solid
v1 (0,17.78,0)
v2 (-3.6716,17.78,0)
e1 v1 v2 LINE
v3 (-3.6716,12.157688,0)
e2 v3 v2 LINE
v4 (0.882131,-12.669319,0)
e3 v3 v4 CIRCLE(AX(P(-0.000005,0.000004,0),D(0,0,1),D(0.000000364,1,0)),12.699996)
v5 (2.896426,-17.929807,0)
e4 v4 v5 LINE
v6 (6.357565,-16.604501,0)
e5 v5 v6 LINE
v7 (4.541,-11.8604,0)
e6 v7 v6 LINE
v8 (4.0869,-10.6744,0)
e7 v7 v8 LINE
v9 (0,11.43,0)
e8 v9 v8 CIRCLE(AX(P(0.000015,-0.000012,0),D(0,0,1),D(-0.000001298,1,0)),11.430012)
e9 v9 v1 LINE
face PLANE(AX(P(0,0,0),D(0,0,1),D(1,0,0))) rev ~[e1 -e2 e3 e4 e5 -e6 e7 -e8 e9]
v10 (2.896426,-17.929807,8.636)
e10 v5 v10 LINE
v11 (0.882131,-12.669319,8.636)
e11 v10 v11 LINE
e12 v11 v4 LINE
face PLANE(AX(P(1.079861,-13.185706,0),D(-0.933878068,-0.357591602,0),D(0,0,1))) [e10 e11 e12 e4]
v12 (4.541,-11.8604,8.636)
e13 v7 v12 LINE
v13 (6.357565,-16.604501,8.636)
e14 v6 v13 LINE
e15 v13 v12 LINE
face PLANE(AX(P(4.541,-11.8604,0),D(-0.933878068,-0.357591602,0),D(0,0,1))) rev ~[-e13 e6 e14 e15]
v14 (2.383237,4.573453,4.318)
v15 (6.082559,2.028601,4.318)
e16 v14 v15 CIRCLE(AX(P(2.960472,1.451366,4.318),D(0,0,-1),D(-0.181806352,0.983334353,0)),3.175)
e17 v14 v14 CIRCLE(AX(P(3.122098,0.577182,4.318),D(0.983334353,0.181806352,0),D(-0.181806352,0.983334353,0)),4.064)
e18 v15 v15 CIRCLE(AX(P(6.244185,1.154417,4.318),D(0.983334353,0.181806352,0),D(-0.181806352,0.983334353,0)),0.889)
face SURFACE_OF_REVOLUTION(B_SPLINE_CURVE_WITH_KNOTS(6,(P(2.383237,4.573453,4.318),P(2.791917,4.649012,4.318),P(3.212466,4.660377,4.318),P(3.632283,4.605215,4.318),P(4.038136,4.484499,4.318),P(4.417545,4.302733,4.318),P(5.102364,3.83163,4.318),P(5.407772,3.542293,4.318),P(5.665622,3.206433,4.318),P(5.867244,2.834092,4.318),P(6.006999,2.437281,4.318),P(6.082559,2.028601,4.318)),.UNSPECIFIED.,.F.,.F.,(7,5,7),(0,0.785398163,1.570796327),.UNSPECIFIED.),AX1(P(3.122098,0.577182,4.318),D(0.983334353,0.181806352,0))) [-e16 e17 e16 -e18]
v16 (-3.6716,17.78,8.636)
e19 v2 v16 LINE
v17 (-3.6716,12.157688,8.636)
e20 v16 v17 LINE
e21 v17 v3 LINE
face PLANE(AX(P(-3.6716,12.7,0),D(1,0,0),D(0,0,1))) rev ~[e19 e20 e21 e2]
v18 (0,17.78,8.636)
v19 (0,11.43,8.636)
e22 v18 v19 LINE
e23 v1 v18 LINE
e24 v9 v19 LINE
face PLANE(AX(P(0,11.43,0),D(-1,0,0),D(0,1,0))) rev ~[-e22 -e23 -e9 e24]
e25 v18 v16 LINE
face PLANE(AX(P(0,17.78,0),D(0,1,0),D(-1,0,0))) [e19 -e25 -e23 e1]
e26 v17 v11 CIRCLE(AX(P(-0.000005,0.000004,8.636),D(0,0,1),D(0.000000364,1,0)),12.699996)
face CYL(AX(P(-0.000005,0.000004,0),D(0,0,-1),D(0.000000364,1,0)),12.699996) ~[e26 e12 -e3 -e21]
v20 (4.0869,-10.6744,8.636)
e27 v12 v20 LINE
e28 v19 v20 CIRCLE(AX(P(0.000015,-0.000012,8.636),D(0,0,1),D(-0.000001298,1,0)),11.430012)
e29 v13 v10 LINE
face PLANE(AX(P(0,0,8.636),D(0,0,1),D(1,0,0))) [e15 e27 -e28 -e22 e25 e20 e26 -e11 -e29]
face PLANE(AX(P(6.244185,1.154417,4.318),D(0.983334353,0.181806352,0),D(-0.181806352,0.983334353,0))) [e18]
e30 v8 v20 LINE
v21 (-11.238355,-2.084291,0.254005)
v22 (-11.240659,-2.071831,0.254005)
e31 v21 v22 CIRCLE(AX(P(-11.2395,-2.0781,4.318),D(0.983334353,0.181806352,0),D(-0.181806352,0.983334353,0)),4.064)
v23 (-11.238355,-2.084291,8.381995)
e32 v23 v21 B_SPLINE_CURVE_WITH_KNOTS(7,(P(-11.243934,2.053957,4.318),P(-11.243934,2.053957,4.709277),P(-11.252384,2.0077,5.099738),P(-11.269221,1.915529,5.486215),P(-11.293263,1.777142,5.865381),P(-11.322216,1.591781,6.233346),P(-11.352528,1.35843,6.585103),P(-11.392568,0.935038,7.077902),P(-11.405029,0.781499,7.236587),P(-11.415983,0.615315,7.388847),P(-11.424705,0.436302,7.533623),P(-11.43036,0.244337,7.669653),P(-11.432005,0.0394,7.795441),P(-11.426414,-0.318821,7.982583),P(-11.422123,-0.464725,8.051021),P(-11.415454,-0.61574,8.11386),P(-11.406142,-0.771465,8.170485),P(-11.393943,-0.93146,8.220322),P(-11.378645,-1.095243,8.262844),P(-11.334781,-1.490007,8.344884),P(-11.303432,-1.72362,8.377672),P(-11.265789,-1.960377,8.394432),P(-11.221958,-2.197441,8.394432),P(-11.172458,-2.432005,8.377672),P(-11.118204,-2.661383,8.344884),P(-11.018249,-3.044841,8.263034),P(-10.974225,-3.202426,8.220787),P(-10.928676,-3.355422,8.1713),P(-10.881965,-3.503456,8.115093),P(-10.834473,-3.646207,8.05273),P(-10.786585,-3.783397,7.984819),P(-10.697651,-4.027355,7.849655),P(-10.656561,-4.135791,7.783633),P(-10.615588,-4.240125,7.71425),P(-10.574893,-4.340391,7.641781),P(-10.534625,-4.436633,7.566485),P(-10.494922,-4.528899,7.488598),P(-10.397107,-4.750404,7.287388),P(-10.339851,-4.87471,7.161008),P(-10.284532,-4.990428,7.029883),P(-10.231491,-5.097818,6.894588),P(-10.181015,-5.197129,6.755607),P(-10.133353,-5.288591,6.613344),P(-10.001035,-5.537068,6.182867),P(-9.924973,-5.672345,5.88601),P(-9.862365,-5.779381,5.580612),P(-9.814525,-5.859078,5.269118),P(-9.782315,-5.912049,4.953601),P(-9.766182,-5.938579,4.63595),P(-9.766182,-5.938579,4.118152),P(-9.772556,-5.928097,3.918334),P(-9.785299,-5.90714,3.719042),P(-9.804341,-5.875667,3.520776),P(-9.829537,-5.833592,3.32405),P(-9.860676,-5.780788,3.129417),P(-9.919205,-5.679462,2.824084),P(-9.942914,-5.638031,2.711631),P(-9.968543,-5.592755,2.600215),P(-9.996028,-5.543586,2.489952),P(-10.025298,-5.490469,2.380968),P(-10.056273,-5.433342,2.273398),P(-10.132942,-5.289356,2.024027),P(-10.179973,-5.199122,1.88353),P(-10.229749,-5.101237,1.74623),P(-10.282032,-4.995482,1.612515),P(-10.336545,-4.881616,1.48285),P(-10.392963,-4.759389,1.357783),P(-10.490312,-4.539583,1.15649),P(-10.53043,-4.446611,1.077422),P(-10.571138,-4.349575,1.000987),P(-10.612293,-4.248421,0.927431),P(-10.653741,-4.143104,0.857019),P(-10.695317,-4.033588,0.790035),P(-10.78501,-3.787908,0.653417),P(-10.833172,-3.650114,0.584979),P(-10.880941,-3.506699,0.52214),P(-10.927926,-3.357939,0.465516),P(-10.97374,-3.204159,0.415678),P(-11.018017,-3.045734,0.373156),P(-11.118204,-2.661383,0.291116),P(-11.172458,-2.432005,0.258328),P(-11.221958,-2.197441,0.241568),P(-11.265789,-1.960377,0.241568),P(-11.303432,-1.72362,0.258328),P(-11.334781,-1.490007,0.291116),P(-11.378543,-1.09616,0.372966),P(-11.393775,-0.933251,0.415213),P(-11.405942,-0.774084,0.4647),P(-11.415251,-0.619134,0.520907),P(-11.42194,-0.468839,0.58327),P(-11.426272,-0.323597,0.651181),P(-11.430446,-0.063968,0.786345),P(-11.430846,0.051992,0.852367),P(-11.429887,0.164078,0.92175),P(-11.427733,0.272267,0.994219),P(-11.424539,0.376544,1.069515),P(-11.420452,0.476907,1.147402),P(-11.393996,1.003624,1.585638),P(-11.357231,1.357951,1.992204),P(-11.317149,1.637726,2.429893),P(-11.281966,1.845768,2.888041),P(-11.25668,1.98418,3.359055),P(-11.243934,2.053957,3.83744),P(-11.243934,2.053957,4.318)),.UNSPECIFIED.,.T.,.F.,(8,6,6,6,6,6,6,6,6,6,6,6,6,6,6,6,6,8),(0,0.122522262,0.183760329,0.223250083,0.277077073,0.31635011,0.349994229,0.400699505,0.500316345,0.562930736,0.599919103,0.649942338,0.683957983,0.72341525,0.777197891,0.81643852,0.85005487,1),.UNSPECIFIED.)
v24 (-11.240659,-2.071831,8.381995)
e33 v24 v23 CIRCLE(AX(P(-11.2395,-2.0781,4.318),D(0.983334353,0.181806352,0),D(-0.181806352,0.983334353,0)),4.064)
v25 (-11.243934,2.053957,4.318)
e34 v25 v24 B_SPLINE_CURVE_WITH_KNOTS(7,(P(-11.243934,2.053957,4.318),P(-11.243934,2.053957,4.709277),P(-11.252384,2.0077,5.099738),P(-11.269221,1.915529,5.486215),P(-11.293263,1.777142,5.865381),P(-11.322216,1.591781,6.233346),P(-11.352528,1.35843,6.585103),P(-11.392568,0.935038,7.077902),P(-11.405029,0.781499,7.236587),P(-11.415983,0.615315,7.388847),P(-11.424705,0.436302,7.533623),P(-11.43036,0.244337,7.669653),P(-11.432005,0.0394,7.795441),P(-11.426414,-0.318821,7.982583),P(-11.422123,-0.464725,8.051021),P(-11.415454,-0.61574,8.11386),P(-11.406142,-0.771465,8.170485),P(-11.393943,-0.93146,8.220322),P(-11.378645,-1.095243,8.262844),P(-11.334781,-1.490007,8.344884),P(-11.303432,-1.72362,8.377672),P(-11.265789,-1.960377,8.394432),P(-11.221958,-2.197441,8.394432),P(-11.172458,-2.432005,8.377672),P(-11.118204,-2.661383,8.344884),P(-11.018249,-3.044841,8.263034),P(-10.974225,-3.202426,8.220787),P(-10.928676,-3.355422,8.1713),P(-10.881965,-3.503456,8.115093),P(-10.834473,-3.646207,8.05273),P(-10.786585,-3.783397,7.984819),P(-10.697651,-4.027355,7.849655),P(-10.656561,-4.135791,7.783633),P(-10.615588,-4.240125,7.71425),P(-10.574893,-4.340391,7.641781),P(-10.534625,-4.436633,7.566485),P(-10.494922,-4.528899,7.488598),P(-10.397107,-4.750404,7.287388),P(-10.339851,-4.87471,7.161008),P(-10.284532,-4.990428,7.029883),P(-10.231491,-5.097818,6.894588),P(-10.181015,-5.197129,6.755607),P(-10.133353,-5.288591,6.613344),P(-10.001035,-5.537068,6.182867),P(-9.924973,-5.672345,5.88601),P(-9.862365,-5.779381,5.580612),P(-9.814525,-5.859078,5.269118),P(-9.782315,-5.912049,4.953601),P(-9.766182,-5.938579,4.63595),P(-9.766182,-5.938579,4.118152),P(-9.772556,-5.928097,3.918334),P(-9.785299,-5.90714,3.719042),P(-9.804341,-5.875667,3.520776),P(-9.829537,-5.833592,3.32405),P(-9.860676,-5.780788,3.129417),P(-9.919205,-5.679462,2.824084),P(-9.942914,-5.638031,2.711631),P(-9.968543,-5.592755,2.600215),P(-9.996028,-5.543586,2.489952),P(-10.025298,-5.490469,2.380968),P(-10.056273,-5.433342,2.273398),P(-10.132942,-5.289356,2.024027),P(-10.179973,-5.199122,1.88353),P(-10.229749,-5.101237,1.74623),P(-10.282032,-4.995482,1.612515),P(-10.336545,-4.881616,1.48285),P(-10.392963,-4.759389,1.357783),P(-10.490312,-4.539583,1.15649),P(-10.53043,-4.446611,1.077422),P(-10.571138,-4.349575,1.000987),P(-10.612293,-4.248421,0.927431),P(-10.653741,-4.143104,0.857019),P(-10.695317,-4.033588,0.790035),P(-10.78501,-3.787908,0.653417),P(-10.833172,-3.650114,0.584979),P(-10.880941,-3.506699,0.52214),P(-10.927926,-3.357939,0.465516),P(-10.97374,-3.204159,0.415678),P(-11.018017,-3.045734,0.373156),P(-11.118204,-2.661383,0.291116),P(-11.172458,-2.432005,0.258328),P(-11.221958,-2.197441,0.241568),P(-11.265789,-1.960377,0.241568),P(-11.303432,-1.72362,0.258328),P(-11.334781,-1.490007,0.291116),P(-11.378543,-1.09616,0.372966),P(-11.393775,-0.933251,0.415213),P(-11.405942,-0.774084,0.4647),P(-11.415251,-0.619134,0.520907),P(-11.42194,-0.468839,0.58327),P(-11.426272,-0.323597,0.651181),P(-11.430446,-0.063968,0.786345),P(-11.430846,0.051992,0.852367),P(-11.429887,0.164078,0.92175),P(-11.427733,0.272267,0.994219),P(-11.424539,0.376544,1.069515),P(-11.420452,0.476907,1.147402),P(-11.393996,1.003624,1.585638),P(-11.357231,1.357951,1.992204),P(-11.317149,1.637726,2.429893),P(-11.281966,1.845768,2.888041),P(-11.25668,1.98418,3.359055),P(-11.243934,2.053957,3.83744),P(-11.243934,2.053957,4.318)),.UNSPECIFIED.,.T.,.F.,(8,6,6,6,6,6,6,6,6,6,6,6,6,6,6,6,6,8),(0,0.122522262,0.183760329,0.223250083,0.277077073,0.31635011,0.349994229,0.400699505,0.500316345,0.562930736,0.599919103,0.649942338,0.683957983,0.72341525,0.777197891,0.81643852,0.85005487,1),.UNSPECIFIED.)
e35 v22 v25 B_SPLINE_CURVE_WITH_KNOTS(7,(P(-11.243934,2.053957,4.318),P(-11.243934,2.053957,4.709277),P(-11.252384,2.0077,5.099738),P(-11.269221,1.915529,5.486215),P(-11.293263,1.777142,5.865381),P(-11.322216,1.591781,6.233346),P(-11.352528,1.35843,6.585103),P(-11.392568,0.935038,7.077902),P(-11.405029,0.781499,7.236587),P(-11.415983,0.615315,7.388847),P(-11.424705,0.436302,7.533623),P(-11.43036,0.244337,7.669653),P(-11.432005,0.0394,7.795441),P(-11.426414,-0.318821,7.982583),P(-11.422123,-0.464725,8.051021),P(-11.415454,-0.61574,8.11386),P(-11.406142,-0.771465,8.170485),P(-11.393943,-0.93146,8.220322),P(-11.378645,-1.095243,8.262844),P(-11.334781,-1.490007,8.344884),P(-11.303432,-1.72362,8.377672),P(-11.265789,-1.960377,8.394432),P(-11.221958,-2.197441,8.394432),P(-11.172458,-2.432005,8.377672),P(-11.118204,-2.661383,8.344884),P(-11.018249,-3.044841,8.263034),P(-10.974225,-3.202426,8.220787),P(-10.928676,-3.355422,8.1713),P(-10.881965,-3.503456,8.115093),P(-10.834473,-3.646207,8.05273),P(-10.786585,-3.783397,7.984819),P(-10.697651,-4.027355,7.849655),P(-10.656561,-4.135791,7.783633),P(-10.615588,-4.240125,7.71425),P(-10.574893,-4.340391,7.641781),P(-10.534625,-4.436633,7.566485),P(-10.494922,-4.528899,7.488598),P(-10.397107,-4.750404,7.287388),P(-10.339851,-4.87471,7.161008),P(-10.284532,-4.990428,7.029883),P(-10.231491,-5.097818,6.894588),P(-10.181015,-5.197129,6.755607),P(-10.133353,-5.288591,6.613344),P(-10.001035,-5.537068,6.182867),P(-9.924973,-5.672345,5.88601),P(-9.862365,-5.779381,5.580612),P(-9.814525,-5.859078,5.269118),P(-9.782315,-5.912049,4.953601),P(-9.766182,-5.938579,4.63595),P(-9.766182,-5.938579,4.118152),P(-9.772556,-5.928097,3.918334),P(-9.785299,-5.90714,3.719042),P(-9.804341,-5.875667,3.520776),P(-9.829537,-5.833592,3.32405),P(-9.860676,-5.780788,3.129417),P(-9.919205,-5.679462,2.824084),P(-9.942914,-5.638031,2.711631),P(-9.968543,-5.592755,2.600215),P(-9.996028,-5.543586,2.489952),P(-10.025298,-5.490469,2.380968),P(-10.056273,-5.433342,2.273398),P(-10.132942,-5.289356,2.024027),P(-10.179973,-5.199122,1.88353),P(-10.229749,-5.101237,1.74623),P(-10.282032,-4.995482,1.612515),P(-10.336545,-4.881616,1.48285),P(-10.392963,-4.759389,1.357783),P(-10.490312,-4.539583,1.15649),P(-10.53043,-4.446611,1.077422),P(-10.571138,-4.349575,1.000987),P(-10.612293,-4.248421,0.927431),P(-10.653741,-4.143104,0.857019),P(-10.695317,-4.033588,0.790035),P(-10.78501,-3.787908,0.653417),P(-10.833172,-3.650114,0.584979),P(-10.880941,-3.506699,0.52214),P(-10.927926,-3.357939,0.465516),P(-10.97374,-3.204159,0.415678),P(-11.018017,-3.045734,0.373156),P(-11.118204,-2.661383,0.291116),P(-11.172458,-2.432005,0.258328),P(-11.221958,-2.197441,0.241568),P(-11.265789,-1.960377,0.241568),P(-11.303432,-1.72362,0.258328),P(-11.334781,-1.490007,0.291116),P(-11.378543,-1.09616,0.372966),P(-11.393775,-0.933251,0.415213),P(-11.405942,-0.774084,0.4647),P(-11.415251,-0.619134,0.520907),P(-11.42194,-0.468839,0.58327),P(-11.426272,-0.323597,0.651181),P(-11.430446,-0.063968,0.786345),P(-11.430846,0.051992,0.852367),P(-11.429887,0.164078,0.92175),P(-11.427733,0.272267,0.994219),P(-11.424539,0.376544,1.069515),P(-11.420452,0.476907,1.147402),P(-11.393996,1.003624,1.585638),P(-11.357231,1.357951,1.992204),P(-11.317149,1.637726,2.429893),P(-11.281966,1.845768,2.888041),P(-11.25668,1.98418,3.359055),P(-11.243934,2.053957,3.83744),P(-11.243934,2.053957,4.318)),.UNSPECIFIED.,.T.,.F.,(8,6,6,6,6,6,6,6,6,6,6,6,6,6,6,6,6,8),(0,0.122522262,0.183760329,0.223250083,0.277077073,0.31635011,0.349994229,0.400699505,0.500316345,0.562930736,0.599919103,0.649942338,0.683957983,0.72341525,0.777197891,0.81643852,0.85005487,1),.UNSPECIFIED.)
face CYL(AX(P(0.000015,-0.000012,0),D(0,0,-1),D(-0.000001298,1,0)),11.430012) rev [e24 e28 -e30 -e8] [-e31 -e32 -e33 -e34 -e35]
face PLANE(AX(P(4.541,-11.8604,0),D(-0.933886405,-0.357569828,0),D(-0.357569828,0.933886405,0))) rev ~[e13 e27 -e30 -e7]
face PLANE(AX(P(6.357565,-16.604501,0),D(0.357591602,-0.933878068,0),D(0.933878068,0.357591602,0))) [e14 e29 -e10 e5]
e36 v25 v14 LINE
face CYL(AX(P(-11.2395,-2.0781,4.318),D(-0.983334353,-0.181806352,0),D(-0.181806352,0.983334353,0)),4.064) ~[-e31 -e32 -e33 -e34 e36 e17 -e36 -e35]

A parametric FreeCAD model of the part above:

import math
import FreeCAD as App
import Part
import Sketcher
Q = App.Units.Quantity


def edges_at(feature, points):
    """Names of the edges that pass closest to the given points."""
    edges = feature.Shape.Edges
    near = lambda p: min(range(len(edges)), key=lambda i: edges[i].distToShape(Part.Vertex(*p))[0])
    return sorted({f"Edge{near(p) + 1}" for p in points})

doc = App.newDocument("Part")
params = doc.addObject("Spreadsheet::Sheet", "Params")
for row, (alias, value) in enumerate([
    ("sketch1_radius", "0.5 in"),
    ("sketch1_radius2", "0.45 in"),
    ("pad1_length", "0.34 in"),
    ("sketch2_diameter", "0.32 in"),
    ("pad2_length", "0.7 in"),
    ("fillet_radius", "0.125 in"),
    ("sketch3_height", "0.34 in"),
    ("pad3_length", "0.2 in"),
    ("pad3_length2", "0.0375 in"),
    ("sketch4_height", "0.34 in"),
    ("pad4_length", "0.2 in"),
    ("pad4_length2", "0.04 in"),
], start=1):
    params.set(f"A{row}", alias)
    params.set(f"B{row}", "=" + value)
    params.setAlias(f"B{row}", alias)

body = doc.addObject("PartDesign::Body", "Body")

# Sketch on XY plane
sketch1 = body.newObject("Sketcher::SketchObject", "Sketch")
sketch1.AttachmentSupport = (doc.getObject("XY_Plane"), [""])
sketch1.MapMode = "FlatFace"
sketch1.addGeometry(Part.LineSegment(App.Vector(0, 11.4, 0), App.Vector(0, 12.7, 0)), False)
sketch1.addGeometry(Part.ArcOfCircle(Part.Circle(App.Vector(0, 0, 0), App.Vector(0, 0, 1), 12.7), math.radians(90), math.radians(291)), False)
sketch1.addGeometry(Part.LineSegment(App.Vector(4.5, -11.9, 0), App.Vector(4.1, -10.7, 0)), False)
sketch1.addGeometry(Part.ArcOfCircle(Part.Circle(App.Vector(0, 0, 0), App.Vector(0, 0, 1), 11.4), math.radians(90), math.radians(291)), False)
sketch1.addConstraint(Sketcher.Constraint("Coincident", 0, 2, 1, 1))
sketch1.addConstraint(Sketcher.Constraint("Coincident", 1, 2, 2, 1))
sketch1.addConstraint(Sketcher.Constraint("Coincident", 2, 2, 3, 2))
sketch1.addConstraint(Sketcher.Constraint("Coincident", 3, 1, 0, 1))
sketch1.addConstraint(Sketcher.Constraint("Vertical", 0))
sketch1.addConstraint(Sketcher.Constraint("Coincident", 1, 3, -1, 1))
sketch1.addConstraint(Sketcher.Constraint("Coincident", 3, 3, -1, 1))
sketch1.addConstraint(Sketcher.Constraint("PointOnObject", 0, 2, -2))
sketch1.addConstraint(Sketcher.Constraint("Radius", 1, Q("0.5 in")))
sketch1.addConstraint(Sketcher.Constraint("Radius", 3, Q("0.45 in")))
sketch1.addConstraint(Sketcher.Constraint("Angle", 2, Q("110.951 deg")))
sketch1.addConstraint(Sketcher.Constraint("DistanceX", -1, 1, 2, 2, Q("0.1609 in")))
sketch1.setExpression("Constraints[8]", "Params.sketch1_radius")
sketch1.setExpression("Constraints[9]", "Params.sketch1_radius2")
pad1 = body.newObject("PartDesign::Pad", "Pad")
pad1.Profile = sketch1
pad1.setExpression("Length", "Params.pad1_length")

# Sketch on an angled plane
sketch2 = body.newObject("Sketcher::SketchObject", "Sketch001")
sketch2.Placement = App.Placement(App.Vector(-11.2395, -2.0781, 4.318), App.Rotation(App.Vector(-0.181806352, 0.983334353, 0), App.Vector(0, 0, 0.999999999), App.Vector(0.983334353, 0.181806352, 0), "ZXY"))
sketch2.addGeometry(Part.Circle(App.Vector(0, 0, 0), App.Vector(0, 0, 1), 4.1), False)
sketch2.addConstraint(Sketcher.Constraint("Coincident", 0, 3, -1, 1))
sketch2.addConstraint(Sketcher.Constraint("Diameter", 0, Q("0.32 in")))
sketch2.setExpression("Constraints[1]", "Params.sketch2_diameter")
pad2 = body.newObject("PartDesign::Pad", "Pad001")
pad2.Profile = sketch2
pad2.setExpression("Length", "Params.pad2_length")
doc.recompute()

fillet = body.newObject("PartDesign::Fillet", "Fillet")
fillet.Base = (pad2, edges_at(pad2, [(6.983, -2.842, 4.318)]))
fillet.setExpression("Radius", "Params.fillet_radius")

# Sketch on XZ plane
sketch3 = body.newObject("Sketcher::SketchObject", "Sketch002")
sketch3.AttachmentSupport = (doc.getObject("XZ_Plane"), [""])
sketch3.MapMode = "FlatFace"
sketch3.AttachmentOffset = App.Placement(App.Vector(0, 0, -0.5 * 25.4), App.Rotation())
sketch3.addGeometry(Part.LineSegment(App.Vector(0, 8.6, 0), App.Vector(0, 0, 0)), False)
sketch3.addGeometry(Part.LineSegment(App.Vector(0, 0, 0), App.Vector(-3.7, 0, 0)), False)
sketch3.addGeometry(Part.LineSegment(App.Vector(-3.7, 0, 0), App.Vector(-3.7, 8.6, 0)), False)
sketch3.addGeometry(Part.LineSegment(App.Vector(-3.7, 8.6, 0), App.Vector(0, 8.6, 0)), False)
sketch3.addConstraint(Sketcher.Constraint("Coincident", 0, 2, 1, 1))
sketch3.addConstraint(Sketcher.Constraint("Coincident", 1, 2, 2, 1))
sketch3.addConstraint(Sketcher.Constraint("Coincident", 2, 2, 3, 1))
sketch3.addConstraint(Sketcher.Constraint("Coincident", 3, 2, 0, 1))
sketch3.addConstraint(Sketcher.Constraint("Vertical", 0))
sketch3.addConstraint(Sketcher.Constraint("Horizontal", 1))
sketch3.addConstraint(Sketcher.Constraint("Vertical", 2))
sketch3.addConstraint(Sketcher.Constraint("Horizontal", 3))
sketch3.addConstraint(Sketcher.Constraint("Coincident", 0, 2, -1, 1))
sketch3.addConstraint(Sketcher.Constraint("DistanceY", 0, 2, 0, 1, Q("0.34 in")))
sketch3.addConstraint(Sketcher.Constraint("DistanceX", 1, 2, 1, 1, 3.6716))
sketch3.setExpression("Constraints[9]", "Params.sketch3_height")
pad3 = body.newObject("PartDesign::Pad", "Pad002")
pad3.Profile = sketch3
pad3.Type = "TwoLengths"
pad3.setExpression("Length", "Params.pad3_length")
pad3.setExpression("Length2", "Params.pad3_length2")
pad3.Reversed = True

# Sketch on an angled plane
sketch4 = body.newObject("Sketcher::SketchObject", "Sketch003")
sketch4.Placement = App.Placement(App.Vector(4.541, -11.8604, 0), App.Rotation(App.Vector(0.933878068, 0.357591602, 0), App.Vector(0, 0, 1), App.Vector(0.357591602, -0.933878068, 0), "ZXY"))
sketch4.addGeometry(Part.LineSegment(App.Vector(-3.7, 8.6, 0), App.Vector(-3.7, 0, 0)), False)
sketch4.addGeometry(Part.LineSegment(App.Vector(-3.7, 0, 0), App.Vector(0, 0, 0)), False)
sketch4.addGeometry(Part.LineSegment(App.Vector(0, 0, 0), App.Vector(0, 8.6, 0)), False)
sketch4.addGeometry(Part.LineSegment(App.Vector(0, 8.6, 0), App.Vector(-3.7, 8.6, 0)), False)
sketch4.addConstraint(Sketcher.Constraint("Coincident", 0, 2, 1, 1))
sketch4.addConstraint(Sketcher.Constraint("Coincident", 1, 2, 2, 1))
sketch4.addConstraint(Sketcher.Constraint("Coincident", 2, 2, 3, 1))
sketch4.addConstraint(Sketcher.Constraint("Coincident", 3, 2, 0, 1))
sketch4.addConstraint(Sketcher.Constraint("Vertical", 0))
sketch4.addConstraint(Sketcher.Constraint("Horizontal", 1))
sketch4.addConstraint(Sketcher.Constraint("Vertical", 2))
sketch4.addConstraint(Sketcher.Constraint("Horizontal", 3))
sketch4.addConstraint(Sketcher.Constraint("Coincident", 1, 2, -1, 1))
sketch4.addConstraint(Sketcher.Constraint("DistanceY", 0, 2, 0, 1, Q("0.34 in")))
sketch4.addConstraint(Sketcher.Constraint("DistanceX", 1, 1, 1, 2, 3.7062))
sketch4.setExpression("Constraints[9]", "Params.sketch4_height")
pad4 = body.newObject("PartDesign::Pad", "Pad003")
pad4.Profile = sketch4
pad4.Type = "TwoLengths"
pad4.setExpression("Length", "Params.pad4_length")
pad4.setExpression("Length2", "Params.pad4_length2")

doc.recompute()
